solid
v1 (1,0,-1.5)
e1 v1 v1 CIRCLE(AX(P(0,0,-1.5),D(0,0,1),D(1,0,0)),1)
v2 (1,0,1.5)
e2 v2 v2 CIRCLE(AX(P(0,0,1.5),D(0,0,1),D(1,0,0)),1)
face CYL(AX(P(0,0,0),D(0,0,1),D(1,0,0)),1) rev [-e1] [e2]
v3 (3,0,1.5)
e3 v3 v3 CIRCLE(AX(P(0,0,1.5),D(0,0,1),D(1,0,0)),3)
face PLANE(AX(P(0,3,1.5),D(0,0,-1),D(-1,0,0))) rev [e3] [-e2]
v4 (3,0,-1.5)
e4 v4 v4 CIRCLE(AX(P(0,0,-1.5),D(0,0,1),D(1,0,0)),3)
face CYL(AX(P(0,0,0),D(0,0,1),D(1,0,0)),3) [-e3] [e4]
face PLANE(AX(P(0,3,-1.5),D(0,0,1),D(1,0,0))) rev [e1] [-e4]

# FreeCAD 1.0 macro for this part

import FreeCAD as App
import Part
import Sketcher

V = App.Vector


def add_polygon(sketch, points):
    """Adds a closed chain of lines whose ends are joined by coincident constraints."""
    first, n = sketch.GeometryCount, len(points)
    for a, b in zip(points, points[1:] + points[:1]):
        sketch.addGeometry(Part.LineSegment(App.Vector(*a, 0), App.Vector(*b, 0)), False)
    for i in range(n):
        sketch.addConstraint(Sketcher.Constraint("Coincident", first + i, 2, first + (i + 1) % n, 1))

doc = App.newDocument("Part")
params = doc.addObject("Spreadsheet::Sheet", "Params")
for row, (alias, value) in enumerate([
    ("sketch1_width", "2 mm"),
    ("sketch1_height", "3 mm"),
    ("revolution_angle", "360 deg"),
], start=1):
    params.set(f"A{row}", alias)
    params.set(f"B{row}", "=" + value)
    params.setAlias(f"B{row}", alias)

body = doc.addObject("PartDesign::Body", "Body")

# Sketch on YZ plane
sketch1 = body.newObject("Sketcher::SketchObject", "Sketch")
sketch1.AttachmentSupport = (doc.getObject("YZ_Plane"), [""])
sketch1.MapMode = "FlatFace"
add_polygon(sketch1, [(3, 1.5), (1, 1.5), (1, -1.5), (3, -1.5)])  # lines 0-3
sketch1.addConstraint(Sketcher.Constraint("Horizontal", 0))
sketch1.addConstraint(Sketcher.Constraint("Vertical", 1))
sketch1.addConstraint(Sketcher.Constraint("Horizontal", 2))
sketch1.addConstraint(Sketcher.Constraint("Vertical", 3))
sketch1.addConstraint(Sketcher.Constraint("DistanceX", 0, 2, 0, 1, 2.0))
sketch1.addConstraint(Sketcher.Constraint("DistanceY", 1, 2, 1, 1, 3.0))
sketch1.addConstraint(Sketcher.Constraint("DistanceX", -1, 1, 0, 2, 1.0))
sketch1.addConstraint(Sketcher.Constraint("DistanceY", -1, 1, 0, 2, 1.5))
sketch1.setExpression("Constraints[8]", "Params.sketch1_width")
sketch1.setExpression("Constraints[9]", "Params.sketch1_height")
revolution = body.newObject("PartDesign::Revolution", "Revolution")
revolution.Profile = sketch1
revolution.ReferenceAxis = (sketch1, ["V_Axis"])
revolution.setExpression("Angle", "Params.revolution_angle")

doc.recompute()
